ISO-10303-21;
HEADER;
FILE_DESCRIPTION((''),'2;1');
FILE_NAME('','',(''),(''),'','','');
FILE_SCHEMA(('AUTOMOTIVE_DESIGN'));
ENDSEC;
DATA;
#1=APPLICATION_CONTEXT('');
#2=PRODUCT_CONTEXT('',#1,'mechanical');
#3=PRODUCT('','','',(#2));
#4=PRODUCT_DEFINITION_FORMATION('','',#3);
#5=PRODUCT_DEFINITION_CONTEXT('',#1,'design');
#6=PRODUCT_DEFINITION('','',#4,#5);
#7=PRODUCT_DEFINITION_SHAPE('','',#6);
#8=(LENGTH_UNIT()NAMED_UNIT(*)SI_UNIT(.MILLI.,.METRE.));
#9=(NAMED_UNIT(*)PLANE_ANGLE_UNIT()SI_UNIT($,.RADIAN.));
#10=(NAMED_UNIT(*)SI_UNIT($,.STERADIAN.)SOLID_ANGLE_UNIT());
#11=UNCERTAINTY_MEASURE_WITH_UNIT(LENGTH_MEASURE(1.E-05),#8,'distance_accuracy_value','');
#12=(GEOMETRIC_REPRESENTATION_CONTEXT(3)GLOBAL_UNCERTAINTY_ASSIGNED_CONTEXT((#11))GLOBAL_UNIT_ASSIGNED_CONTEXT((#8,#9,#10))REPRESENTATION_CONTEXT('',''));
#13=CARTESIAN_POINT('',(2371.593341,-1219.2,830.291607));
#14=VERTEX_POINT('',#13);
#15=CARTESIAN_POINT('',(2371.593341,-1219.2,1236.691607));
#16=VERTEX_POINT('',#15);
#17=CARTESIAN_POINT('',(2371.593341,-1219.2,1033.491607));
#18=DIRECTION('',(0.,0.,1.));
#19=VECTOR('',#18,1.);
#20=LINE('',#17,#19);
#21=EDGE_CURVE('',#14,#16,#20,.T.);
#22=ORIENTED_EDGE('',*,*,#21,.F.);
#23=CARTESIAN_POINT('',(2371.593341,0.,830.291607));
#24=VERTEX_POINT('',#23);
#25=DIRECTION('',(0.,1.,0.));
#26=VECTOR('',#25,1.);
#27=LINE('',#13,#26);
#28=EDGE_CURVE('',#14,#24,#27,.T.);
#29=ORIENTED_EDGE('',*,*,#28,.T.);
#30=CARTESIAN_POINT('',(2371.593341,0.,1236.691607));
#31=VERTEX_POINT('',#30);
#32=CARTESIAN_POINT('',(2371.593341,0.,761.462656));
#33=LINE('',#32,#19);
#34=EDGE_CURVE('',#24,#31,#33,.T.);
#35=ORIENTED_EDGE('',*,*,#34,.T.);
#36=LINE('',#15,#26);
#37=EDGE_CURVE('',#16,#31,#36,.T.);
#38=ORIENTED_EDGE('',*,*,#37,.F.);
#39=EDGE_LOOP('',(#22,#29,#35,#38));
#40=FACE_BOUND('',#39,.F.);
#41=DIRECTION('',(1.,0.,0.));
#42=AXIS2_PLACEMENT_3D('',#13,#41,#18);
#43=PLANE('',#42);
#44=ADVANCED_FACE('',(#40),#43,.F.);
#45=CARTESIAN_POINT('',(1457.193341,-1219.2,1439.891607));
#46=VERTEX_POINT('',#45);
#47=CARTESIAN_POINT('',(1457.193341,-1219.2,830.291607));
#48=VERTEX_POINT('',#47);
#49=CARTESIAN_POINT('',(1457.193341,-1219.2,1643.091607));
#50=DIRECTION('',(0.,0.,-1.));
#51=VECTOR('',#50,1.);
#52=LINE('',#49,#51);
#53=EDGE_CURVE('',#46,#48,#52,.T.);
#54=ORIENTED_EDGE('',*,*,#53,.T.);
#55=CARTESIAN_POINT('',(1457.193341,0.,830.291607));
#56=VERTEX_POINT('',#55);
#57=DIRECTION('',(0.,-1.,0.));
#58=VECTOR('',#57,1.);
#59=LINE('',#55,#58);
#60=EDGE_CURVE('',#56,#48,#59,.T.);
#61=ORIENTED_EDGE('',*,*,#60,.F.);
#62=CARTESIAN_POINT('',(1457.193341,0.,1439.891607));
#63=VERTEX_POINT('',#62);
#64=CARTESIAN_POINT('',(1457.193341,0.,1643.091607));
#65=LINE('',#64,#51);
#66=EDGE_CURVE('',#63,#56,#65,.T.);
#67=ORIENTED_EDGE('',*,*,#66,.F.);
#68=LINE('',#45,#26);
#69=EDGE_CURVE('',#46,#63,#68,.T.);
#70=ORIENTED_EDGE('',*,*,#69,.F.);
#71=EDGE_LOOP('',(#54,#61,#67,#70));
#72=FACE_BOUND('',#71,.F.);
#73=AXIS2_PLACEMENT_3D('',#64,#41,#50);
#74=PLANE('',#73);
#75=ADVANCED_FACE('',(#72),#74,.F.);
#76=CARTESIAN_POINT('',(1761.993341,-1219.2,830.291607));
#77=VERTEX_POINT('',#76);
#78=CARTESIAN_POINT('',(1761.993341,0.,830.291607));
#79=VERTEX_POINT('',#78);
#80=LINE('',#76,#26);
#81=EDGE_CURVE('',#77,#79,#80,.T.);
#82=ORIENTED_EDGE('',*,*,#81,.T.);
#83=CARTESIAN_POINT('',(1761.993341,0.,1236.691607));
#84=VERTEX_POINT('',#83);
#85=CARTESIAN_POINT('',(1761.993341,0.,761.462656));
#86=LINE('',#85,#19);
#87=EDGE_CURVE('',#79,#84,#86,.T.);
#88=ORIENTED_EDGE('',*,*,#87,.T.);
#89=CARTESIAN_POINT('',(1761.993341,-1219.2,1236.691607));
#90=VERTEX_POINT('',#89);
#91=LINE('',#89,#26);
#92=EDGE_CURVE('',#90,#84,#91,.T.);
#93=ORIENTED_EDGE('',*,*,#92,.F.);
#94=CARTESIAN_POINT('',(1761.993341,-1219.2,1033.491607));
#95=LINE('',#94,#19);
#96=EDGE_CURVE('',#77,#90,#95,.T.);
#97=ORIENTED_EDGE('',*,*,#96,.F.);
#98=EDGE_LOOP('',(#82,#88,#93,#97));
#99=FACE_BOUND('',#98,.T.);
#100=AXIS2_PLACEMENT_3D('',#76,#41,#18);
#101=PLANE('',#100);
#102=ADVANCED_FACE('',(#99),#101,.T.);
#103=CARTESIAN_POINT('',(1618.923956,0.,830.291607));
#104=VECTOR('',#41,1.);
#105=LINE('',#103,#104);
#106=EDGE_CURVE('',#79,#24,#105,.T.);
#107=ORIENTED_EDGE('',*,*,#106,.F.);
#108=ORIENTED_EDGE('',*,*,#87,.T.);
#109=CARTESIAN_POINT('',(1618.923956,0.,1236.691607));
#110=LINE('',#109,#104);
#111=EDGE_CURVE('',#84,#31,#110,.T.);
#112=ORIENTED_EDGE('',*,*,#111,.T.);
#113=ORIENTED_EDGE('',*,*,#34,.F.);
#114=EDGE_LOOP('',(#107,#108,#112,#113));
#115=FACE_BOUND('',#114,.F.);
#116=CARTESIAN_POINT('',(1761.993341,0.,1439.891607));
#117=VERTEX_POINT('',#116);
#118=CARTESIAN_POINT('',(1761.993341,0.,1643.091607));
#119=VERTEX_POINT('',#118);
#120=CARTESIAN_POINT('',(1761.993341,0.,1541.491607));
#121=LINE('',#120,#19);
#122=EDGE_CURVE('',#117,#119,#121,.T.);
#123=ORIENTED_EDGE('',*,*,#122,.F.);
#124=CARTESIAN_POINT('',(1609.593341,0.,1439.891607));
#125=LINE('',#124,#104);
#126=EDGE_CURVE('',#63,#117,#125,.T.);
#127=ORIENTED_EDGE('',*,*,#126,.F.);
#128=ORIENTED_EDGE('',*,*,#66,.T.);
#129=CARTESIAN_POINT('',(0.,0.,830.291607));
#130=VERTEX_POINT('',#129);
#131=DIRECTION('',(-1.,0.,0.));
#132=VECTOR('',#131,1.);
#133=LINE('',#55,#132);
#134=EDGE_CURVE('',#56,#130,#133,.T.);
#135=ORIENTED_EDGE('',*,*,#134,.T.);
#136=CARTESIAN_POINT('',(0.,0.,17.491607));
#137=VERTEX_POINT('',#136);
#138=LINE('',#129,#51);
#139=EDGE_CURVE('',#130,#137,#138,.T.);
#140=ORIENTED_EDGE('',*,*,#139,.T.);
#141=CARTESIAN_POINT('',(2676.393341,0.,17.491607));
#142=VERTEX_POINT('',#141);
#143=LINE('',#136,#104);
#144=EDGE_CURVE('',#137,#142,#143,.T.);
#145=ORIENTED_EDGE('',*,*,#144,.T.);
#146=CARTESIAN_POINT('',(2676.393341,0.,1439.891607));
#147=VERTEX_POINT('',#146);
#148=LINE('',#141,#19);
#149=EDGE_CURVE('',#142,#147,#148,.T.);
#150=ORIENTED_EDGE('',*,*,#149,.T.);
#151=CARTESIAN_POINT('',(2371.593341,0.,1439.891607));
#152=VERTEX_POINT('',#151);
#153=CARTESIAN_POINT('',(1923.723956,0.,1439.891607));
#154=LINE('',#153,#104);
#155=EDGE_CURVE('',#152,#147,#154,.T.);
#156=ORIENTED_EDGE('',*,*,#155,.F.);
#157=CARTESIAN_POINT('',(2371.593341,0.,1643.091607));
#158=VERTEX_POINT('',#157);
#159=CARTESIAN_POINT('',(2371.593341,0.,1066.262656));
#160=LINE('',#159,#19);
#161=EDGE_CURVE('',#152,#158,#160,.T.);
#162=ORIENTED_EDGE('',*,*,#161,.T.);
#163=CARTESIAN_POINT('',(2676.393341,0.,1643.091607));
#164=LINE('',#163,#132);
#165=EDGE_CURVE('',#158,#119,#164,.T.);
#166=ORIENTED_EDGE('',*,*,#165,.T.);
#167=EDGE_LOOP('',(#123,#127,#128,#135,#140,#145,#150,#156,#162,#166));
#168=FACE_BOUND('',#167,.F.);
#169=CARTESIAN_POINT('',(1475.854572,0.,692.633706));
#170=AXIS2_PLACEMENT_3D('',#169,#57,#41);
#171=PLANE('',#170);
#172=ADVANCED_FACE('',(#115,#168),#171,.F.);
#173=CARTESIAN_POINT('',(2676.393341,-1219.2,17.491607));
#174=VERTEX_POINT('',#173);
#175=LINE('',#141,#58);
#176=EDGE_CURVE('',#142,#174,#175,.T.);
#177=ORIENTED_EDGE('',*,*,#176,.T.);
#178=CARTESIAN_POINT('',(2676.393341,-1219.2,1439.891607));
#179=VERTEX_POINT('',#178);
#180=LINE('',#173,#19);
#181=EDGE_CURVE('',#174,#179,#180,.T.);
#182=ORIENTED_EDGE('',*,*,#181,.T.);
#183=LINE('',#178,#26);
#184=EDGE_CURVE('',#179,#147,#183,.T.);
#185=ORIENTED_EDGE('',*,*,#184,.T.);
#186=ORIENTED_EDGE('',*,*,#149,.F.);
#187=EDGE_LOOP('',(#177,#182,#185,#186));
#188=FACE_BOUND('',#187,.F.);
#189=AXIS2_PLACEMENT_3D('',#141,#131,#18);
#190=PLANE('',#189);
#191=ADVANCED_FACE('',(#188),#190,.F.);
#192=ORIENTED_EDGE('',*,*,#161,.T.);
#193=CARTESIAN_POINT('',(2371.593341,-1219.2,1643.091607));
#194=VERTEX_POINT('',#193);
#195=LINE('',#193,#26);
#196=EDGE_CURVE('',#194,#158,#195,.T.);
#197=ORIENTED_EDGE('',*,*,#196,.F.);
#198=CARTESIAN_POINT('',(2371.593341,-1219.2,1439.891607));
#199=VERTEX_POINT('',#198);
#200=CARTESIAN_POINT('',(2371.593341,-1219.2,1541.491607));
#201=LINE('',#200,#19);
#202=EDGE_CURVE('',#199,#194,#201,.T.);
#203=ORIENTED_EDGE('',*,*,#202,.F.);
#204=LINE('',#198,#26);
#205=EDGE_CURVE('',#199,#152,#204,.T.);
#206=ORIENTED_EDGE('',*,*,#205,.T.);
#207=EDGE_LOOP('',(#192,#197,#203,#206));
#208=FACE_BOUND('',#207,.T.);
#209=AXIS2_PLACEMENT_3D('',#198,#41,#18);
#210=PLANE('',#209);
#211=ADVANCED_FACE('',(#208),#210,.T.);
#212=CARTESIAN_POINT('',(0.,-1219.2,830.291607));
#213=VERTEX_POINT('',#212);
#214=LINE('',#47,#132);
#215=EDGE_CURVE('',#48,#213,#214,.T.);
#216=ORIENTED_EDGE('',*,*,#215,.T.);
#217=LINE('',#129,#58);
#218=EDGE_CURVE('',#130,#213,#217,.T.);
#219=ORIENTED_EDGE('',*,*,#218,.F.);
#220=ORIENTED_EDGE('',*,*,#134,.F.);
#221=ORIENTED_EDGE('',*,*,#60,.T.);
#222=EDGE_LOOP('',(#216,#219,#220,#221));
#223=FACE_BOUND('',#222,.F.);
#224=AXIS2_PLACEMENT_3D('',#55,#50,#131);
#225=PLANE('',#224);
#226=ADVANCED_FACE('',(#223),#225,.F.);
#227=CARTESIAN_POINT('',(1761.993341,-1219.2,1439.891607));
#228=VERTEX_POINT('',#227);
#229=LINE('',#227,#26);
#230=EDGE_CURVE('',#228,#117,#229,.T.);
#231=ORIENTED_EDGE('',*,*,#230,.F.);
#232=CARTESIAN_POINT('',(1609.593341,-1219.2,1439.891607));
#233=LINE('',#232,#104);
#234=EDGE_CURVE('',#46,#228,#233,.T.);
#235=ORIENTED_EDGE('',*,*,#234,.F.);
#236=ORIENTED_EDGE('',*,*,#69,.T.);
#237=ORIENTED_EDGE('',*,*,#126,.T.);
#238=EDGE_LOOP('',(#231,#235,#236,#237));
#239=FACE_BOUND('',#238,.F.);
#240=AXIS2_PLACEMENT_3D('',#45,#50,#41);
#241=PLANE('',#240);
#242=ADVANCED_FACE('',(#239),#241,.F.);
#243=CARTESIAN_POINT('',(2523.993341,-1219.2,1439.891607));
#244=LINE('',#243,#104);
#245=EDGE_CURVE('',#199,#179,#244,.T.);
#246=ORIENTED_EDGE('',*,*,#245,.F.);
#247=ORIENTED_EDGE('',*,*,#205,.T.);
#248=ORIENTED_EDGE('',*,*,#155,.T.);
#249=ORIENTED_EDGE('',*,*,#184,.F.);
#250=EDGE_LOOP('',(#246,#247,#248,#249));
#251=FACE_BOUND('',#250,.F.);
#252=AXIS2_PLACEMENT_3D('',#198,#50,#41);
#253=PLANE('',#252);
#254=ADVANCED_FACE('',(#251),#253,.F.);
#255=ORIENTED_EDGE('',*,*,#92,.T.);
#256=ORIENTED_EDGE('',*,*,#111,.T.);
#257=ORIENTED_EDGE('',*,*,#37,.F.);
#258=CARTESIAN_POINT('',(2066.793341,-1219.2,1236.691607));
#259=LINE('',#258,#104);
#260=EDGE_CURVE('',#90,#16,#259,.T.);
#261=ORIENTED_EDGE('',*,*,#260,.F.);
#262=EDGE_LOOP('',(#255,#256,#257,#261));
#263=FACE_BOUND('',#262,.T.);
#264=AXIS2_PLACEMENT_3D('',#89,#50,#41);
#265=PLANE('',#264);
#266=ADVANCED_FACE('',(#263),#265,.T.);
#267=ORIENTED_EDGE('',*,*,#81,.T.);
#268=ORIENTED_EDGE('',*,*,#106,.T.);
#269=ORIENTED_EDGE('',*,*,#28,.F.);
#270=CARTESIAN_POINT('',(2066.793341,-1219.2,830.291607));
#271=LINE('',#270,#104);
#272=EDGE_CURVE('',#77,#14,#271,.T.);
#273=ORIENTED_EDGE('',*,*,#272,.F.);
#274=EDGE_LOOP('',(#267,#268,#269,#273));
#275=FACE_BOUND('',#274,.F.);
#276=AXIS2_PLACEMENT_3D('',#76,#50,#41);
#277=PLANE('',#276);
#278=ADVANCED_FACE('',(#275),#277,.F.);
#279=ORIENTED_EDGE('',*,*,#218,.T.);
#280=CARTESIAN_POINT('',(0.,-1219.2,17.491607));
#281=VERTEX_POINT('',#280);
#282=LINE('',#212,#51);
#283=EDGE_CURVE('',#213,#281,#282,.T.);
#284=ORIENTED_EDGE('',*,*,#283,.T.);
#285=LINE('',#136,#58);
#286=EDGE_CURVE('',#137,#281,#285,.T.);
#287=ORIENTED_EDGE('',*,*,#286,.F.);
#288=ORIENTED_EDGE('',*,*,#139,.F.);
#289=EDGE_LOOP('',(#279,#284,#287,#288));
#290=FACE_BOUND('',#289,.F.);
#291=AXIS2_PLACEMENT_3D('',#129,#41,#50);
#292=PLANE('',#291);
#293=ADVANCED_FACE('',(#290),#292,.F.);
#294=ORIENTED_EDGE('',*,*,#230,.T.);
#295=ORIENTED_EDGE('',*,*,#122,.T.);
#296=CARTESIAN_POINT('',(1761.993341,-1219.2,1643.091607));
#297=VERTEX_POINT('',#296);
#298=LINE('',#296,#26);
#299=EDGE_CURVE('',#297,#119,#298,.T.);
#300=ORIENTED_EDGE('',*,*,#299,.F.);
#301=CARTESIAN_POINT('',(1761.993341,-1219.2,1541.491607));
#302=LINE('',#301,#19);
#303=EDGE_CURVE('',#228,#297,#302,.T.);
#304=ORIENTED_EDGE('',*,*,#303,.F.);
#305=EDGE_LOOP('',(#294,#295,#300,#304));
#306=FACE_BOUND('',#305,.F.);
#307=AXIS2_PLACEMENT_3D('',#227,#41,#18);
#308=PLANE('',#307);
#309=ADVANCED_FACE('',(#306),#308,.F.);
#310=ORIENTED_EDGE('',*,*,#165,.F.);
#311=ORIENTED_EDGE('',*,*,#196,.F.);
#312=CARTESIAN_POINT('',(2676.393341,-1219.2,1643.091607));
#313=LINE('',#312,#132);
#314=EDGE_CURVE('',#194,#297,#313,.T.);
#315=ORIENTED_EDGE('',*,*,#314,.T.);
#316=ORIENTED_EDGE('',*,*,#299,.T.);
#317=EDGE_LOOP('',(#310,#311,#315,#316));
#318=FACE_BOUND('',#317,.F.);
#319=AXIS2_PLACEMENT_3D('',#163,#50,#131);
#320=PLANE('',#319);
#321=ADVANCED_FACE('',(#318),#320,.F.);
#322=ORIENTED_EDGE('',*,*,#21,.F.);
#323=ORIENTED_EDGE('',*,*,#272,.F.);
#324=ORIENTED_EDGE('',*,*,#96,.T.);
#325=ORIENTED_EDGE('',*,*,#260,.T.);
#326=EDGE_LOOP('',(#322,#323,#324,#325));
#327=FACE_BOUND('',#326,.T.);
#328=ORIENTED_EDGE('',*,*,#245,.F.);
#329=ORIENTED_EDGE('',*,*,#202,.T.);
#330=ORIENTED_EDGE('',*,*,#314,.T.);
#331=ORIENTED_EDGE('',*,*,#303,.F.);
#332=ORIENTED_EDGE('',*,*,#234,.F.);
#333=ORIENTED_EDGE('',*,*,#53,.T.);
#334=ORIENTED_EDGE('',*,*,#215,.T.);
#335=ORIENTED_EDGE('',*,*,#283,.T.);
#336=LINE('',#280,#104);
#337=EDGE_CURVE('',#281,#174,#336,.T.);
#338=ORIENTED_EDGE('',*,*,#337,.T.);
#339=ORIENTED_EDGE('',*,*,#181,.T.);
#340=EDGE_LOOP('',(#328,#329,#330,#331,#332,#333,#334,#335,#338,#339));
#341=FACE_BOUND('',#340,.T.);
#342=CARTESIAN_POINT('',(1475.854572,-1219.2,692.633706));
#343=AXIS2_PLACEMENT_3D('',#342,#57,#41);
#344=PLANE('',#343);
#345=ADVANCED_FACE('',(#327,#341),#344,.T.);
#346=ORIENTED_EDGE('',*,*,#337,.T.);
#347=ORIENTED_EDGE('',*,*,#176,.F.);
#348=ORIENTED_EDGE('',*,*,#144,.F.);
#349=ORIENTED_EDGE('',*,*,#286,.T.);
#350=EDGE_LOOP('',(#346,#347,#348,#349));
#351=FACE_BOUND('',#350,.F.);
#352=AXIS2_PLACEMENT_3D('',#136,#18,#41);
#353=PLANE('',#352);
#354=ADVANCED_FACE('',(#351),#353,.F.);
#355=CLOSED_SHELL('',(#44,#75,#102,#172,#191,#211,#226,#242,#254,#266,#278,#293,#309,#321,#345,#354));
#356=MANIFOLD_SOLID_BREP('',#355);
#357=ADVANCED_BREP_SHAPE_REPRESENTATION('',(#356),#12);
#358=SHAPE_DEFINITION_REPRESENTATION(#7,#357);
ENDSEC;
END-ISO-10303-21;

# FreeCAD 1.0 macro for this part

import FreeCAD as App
import Part
import Sketcher

V = App.Vector
Q = App.Units.Quantity

doc = App.newDocument("Part")
body = doc.addObject("PartDesign::Body", "Body")

# Sketch on XZ plane
sketch1 = body.newObject("Sketcher::SketchObject", "Sketch")
sketch1.AttachmentSupport = (doc.getObject("XZ_Plane"), [""])
sketch1.MapMode = "FlatFace"
sketch1.addGeometry([
    Part.LineSegment(V(0, 830, 0), V(0, 17, 0)),  # 0
    Part.LineSegment(V(0, 17, 0), V(2676, 17, 0)),  # 1
    Part.LineSegment(V(2676, 17, 0), V(2676, 1643, 0)),  # 2
    Part.LineSegment(V(2676, 1643, 0), V(1457, 1643, 0)),  # 3
    Part.LineSegment(V(1457, 1643, 0), V(1457, 830, 0)),  # 4
    Part.LineSegment(V(1457, 830, 0), V(0, 830, 0)),  # 5
], False)
sketch1.addConstraint([
    Sketcher.Constraint("Coincident", 0, 2, 1, 1),
    Sketcher.Constraint("Coincident", 1, 2, 2, 1),
    Sketcher.Constraint("Coincident", 2, 2, 3, 1),
    Sketcher.Constraint("Coincident", 3, 2, 4, 1),
    Sketcher.Constraint("Coincident", 4, 2, 5, 1),
    Sketcher.Constraint("Coincident", 5, 2, 0, 1),
    Sketcher.Constraint("Vertical", 0),
    Sketcher.Constraint("Horizontal", 1),
    Sketcher.Constraint("Vertical", 2),
    Sketcher.Constraint("Horizontal", 3),
    Sketcher.Constraint("Vertical", 4),
    Sketcher.Constraint("Horizontal", 5),
    Sketcher.Constraint("PointOnObject", 0, 2, -2),
    Sketcher.Constraint("Equal", 0, 4),
    Sketcher.Constraint("DistanceX", 3, 2, 3, 1, Q("48 in")),
    Sketcher.Constraint("DistanceY", 0, 2, 0, 1, Q("32 in")),
    Sketcher.Constraint("DistanceX", 1, 1, 1, 2, 2676.393341),
    Sketcher.Constraint("DistanceY", -1, 1, 0, 2, 17.491607),
])
pad1 = body.newObject("PartDesign::Pad", "Pad")
pad1.Profile = sketch1
pad1.Length = Q("48 in")

# Sketch on XZ plane
sketch2 = body.newObject("Sketcher::SketchObject", "Sketch001")
sketch2.AttachmentSupport = (doc.getObject("XZ_Plane"), [""])
sketch2.MapMode = "FlatFace"
sketch2.AttachmentOffset = App.Placement(V(0, 0, 48 * 25.4), App.Rotation())
sketch2.addGeometry([
    Part.LineSegment(V(1457, 1643, 0), V(1457, 1440, 0)),
    Part.LineSegment(V(1457, 1440, 0), V(1762, 1440, 0)),
    Part.LineSegment(V(1762, 1440, 0), V(1762, 1643, 0)),
    Part.LineSegment(V(1762, 1643, 0), V(1457, 1643, 0)),
], False)
sketch2.addConstraint([
    Sketcher.Constraint("Coincident", 0, 2, 1, 1),
    Sketcher.Constraint("Coincident", 1, 2, 2, 1),
    Sketcher.Constraint("Coincident", 2, 2, 3, 1),
    Sketcher.Constraint("Coincident", 3, 2, 0, 1),
    Sketcher.Constraint("Vertical", 0),
    Sketcher.Constraint("Horizontal", 1),
    Sketcher.Constraint("Vertical", 2),
    Sketcher.Constraint("Horizontal", 3),
    Sketcher.Constraint("DistanceX", 1, 1, 1, 2, Q("12 in")),
    Sketcher.Constraint("DistanceY", 0, 2, 0, 1, Q("8 in")),
    Sketcher.Constraint("DistanceX", -1, 1, 0, 2, 1457.193341),
    Sketcher.Constraint("DistanceY", -1, 1, 0, 2, 1439.891607),
])
pocket1 = body.newObject("PartDesign::Pocket", "Pocket")
pocket1.Profile = sketch2
pocket1.Type = "ThroughAll"

# Sketch on XZ plane
sketch3 = body.newObject("Sketcher::SketchObject", "Sketch002")
sketch3.AttachmentSupport = (doc.getObject("XZ_Plane"), [""])
sketch3.MapMode = "FlatFace"
sketch3.AttachmentOffset = App.Placement(V(0, 0, 48 * 25.4), App.Rotation())
sketch3.addGeometry([
    Part.LineSegment(V(2372, 1643, 0), V(2372, 1440, 0)),
    Part.LineSegment(V(2372, 1440, 0), V(2676, 1440, 0)),
    Part.LineSegment(V(2676, 1440, 0), V(2676, 1643, 0)),
    Part.LineSegment(V(2676, 1643, 0), V(2372, 1643, 0)),
], False)
sketch3.addConstraint([
    Sketcher.Constraint("Coincident", 0, 2, 1, 1),
    Sketcher.Constraint("Coincident", 1, 2, 2, 1),
    Sketcher.Constraint("Coincident", 2, 2, 3, 1),
    Sketcher.Constraint("Coincident", 3, 2, 0, 1),
    Sketcher.Constraint("Vertical", 0),
    Sketcher.Constraint("Horizontal", 1),
    Sketcher.Constraint("Vertical", 2),
    Sketcher.Constraint("Horizontal", 3),
    Sketcher.Constraint("DistanceX", 1, 1, 1, 2, Q("12 in")),
    Sketcher.Constraint("DistanceY", 0, 2, 0, 1, Q("8 in")),
    Sketcher.Constraint("DistanceX", -1, 1, 0, 2, 2371.593341),
    Sketcher.Constraint("DistanceY", -1, 1, 0, 2, 1439.891607),
])
pocket2 = body.newObject("PartDesign::Pocket", "Pocket001")
pocket2.Profile = sketch3
pocket2.Type = "ThroughAll"

# Sketch on XZ plane
sketch4 = body.newObject("Sketcher::SketchObject", "Sketch003")
sketch4.AttachmentSupport = (doc.getObject("XZ_Plane"), [""])
sketch4.MapMode = "FlatFace"
sketch4.AttachmentOffset = App.Placement(V(0, 0, 48 * 25.4), App.Rotation())
sketch4.addGeometry([
    Part.LineSegment(V(1762, 1237, 0), V(1762, 830, 0)),
    Part.LineSegment(V(1762, 830, 0), V(2372, 830, 0)),
    Part.LineSegment(V(2372, 830, 0), V(2372, 1237, 0)),
    Part.LineSegment(V(2372, 1237, 0), V(1762, 1237, 0)),
], False)
sketch4.addConstraint([
    Sketcher.Constraint("Coincident", 0, 2, 1, 1),
    Sketcher.Constraint("Coincident", 1, 2, 2, 1),
    Sketcher.Constraint("Coincident", 2, 2, 3, 1),
    Sketcher.Constraint("Coincident", 3, 2, 0, 1),
    Sketcher.Constraint("Vertical", 0),
    Sketcher.Constraint("Horizontal", 1),
    Sketcher.Constraint("Vertical", 2),
    Sketcher.Constraint("Horizontal", 3),
    Sketcher.Constraint("DistanceX", 1, 1, 1, 2, Q("24 in")),
    Sketcher.Constraint("DistanceY", 0, 2, 0, 1, Q("16 in")),
    Sketcher.Constraint("DistanceX", -1, 1, 0, 2, 1761.993341),
    Sketcher.Constraint("DistanceY", -1, 1, 0, 2, 830.291607),
])
pocket3 = body.newObject("PartDesign::Pocket", "Pocket002")
pocket3.Profile = sketch4
pocket3.Type = "ThroughAll"

doc.recompute()
